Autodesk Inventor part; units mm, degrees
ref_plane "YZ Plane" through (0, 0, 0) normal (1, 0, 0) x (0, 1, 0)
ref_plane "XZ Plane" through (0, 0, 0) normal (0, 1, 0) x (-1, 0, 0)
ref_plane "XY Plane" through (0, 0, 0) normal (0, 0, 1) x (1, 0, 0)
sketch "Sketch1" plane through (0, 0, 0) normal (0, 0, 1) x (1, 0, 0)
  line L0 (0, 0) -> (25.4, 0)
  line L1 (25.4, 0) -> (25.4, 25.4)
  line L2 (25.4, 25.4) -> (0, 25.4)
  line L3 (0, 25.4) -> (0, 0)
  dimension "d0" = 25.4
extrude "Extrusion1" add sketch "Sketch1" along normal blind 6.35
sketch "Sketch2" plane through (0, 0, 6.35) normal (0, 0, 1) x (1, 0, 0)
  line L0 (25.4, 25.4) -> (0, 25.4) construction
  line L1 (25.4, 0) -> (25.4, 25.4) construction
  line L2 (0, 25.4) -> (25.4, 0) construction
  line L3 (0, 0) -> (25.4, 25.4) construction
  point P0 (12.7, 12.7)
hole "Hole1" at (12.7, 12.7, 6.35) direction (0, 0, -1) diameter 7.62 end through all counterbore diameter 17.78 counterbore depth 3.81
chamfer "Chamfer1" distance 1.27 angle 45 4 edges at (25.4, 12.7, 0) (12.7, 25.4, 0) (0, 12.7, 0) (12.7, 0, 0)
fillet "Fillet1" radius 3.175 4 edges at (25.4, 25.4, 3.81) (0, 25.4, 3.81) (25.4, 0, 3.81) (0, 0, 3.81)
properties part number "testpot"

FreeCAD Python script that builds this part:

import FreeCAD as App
import Part
import Sketcher

V = App.Vector
Q = App.Units.Quantity


def edges_at(feature, points):
    """Names of the edges that pass closest to the given points."""
    edges = feature.Shape.Edges
    near = lambda p: min(range(len(edges)), key=lambda i: edges[i].distToShape(Part.Vertex(*p))[0])
    return sorted({f"Edge{near(p) + 1}" for p in points})

doc = App.newDocument("Part")
body = doc.addObject("PartDesign::Body", "Body")

sketch1 = body.newObject("Sketcher::SketchObject", "Sketch")
sketch1.AttachmentSupport = (doc.getObject("XY_Plane"), [""])
sketch1.MapMode = "FlatFace"
sketch1.addGeometry(Part.LineSegment(V(0, 25.4, 0), V(0, 0, 0)), False)
sketch1.addGeometry(Part.LineSegment(V(0, 0, 0), V(25.4, 0, 0)), False)
sketch1.addGeometry(Part.LineSegment(V(25.4, 0, 0), V(25.4, 25.4, 0)), False)
sketch1.addGeometry(Part.LineSegment(V(25.4, 25.4, 0), V(0, 25.4, 0)), False)
sketch1.addConstraint(Sketcher.Constraint("Coincident", 0, 2, 1, 1))
sketch1.addConstraint(Sketcher.Constraint("Coincident", 1, 2, 2, 1))
sketch1.addConstraint(Sketcher.Constraint("Coincident", 2, 2, 3, 1))
sketch1.addConstraint(Sketcher.Constraint("Coincident", 3, 2, 0, 1))
sketch1.addConstraint(Sketcher.Constraint("Vertical", 0))
sketch1.addConstraint(Sketcher.Constraint("Horizontal", 1))
sketch1.addConstraint(Sketcher.Constraint("Vertical", 2))
sketch1.addConstraint(Sketcher.Constraint("Horizontal", 3))
sketch1.addConstraint(Sketcher.Constraint("Coincident", 0, 2, -1, 1))
sketch1.addConstraint(Sketcher.Constraint("Equal", 3, 0))
sketch1.addConstraint(Sketcher.Constraint("DistanceX", 1, 1, 1, 2, Q("1 in")))
pad1 = body.newObject("PartDesign::Pad", "Pad")
pad1.Profile = sketch1
pad1.Length = Q("0.25 in")

sketch2 = body.newObject("Sketcher::SketchObject", "Sketch001")
sketch2.AttachmentSupport = (doc.getObject("XY_Plane"), [""])
sketch2.MapMode = "FlatFace"
sketch2.AttachmentOffset = App.Placement(V(0, 0, 0.25 * 25.4), App.Rotation())
sketch2.addGeometry(Part.Circle(V(12.7, 12.7, 0), V(0, 0, 1), 3.81), False)
sketch2.addConstraint(Sketcher.Constraint("Diameter", 0, Q("0.3 in")))
sketch2.addConstraint(Sketcher.Constraint("DistanceX", -1, 1, 0, 3, Q("0.5 in")))
sketch2.addConstraint(Sketcher.Constraint("DistanceY", -1, 1, 0, 3, Q("0.5 in")))
doc.recompute()
hole = body.newObject("PartDesign::Hole", "Hole")
hole.Profile = sketch2
hole.ThreadType = "None"
hole.Diameter = Q("0.3 in")
hole.DepthType = "ThroughAll"
hole.HoleCutType = "Counterbore"
hole.HoleCutDiameter = Q("0.7 in")
hole.HoleCutDepth = Q("0.15 in")
doc.recompute()

chamfer = body.newObject("PartDesign::Chamfer", "Chamfer")
chamfer.Base = (hole, edges_at(hole, [
    (25.4, 12.7, 0),
    (12.7, 25.4, 0),
    (0, 12.7, 0),
    (12.7, 0, 0),
]))
chamfer.Size = Q("0.05 in")
doc.recompute()

fillet = body.newObject("PartDesign::Fillet", "Fillet")
fillet.Base = (chamfer, edges_at(chamfer, [
    (25.4, 25.4, 3.81),
    (0, 25.4, 3.81),
    (25.4, 0, 3.81),
    (0, 0, 3.81),
]))
fillet.Radius = Q("0.125 in")

doc.recompute()
